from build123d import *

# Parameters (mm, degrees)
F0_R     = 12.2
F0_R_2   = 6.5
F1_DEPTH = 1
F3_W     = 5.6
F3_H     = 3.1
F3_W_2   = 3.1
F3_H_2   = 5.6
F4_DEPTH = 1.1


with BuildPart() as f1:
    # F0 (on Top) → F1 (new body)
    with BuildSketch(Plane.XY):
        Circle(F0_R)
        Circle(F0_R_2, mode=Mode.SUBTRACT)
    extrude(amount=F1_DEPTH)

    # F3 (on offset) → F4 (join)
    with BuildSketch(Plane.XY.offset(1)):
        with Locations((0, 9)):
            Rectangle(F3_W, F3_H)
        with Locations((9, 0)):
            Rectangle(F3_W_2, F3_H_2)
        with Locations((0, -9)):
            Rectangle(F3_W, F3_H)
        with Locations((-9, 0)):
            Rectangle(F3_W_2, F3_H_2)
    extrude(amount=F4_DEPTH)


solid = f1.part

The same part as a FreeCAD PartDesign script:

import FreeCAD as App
import Part
import Sketcher

V = App.Vector


def add_polygon(sketch, points):
    """Adds a closed chain of lines whose ends are joined by coincident constraints."""
    first, n = sketch.GeometryCount, len(points)
    for a, b in zip(points, points[1:] + points[:1]):
        sketch.addGeometry(Part.LineSegment(App.Vector(*a, 0), App.Vector(*b, 0)), False)
    for i in range(n):
        sketch.addConstraint(Sketcher.Constraint("Coincident", first + i, 2, first + (i + 1) % n, 1))

doc = App.newDocument("Part")
params = doc.addObject("Spreadsheet::Sheet", "Params")
for row, (alias, value) in enumerate([
    ("sketch1_diameter", "13 mm"),
    ("sketch1_diameter2", "24.4 mm"),
    ("pad1_length", "1 mm"),
    ("sketch2_width", "5.6 mm"),
    ("sketch2_width2", "3.1 mm"),
    ("pad2_length", "1.1 mm"),
], start=1):
    params.set(f"A{row}", alias)
    params.set(f"B{row}", "=" + value)
    params.setAlias(f"B{row}", alias)

body = doc.addObject("PartDesign::Body", "Body")

# Sketch on XY plane
sketch1 = body.newObject("Sketcher::SketchObject", "Sketch")
sketch1.AttachmentSupport = (doc.getObject("XY_Plane"), [""])
sketch1.MapMode = "FlatFace"
sketch1.addGeometry(Part.Circle(V(0, 0, 0), V(0, 0, 1), 12), False)
sketch1.addGeometry(Part.Circle(V(0, 0, 0), V(0, 0, 1), 6), False)
sketch1.addConstraint(Sketcher.Constraint("Coincident", 0, 3, -1, 1))
sketch1.addConstraint(Sketcher.Constraint("Coincident", 1, 3, -1, 1))
sketch1.addConstraint(Sketcher.Constraint("Diameter", 1, 13.0))
sketch1.addConstraint(Sketcher.Constraint("Diameter", 0, 24.4))
sketch1.setExpression("Constraints[2]", "Params.sketch1_diameter")
sketch1.setExpression("Constraints[3]", "Params.sketch1_diameter2")
pad1 = body.newObject("PartDesign::Pad", "Pad")
pad1.Profile = sketch1
pad1.setExpression("Length", "Params.pad1_length")

# Sketch on XY plane
sketch2 = body.newObject("Sketcher::SketchObject", "Sketch001")
sketch2.AttachmentSupport = (doc.getObject("XY_Plane"), [""])
sketch2.MapMode = "FlatFace"
sketch2.AttachmentOffset = App.Placement(V(0, 0, 1), App.Rotation())
add_polygon(sketch2, [(-2.8, 10.6), (-2.8, 7.5), (2.8, 7.5), (2.8, 10.6)])  # lines 0-3
add_polygon(sketch2, [(7.5, 2.8), (7.5, -2.8), (10.6, -2.8), (10.6, 2.8)])  # lines 4-7
add_polygon(sketch2, [(-2.8, -7.5), (-2.8, -10.6), (2.8, -10.6), (2.8, -7.5)])  # lines 8-11
add_polygon(sketch2, [(-10.6, 2.8), (-10.6, -2.8), (-7.5, -2.8), (-7.5, 2.8)])  # lines 12-15
sketch2.addConstraint(Sketcher.Constraint("Vertical", 0))
sketch2.addConstraint(Sketcher.Constraint("Horizontal", 1))
sketch2.addConstraint(Sketcher.Constraint("Vertical", 2))
sketch2.addConstraint(Sketcher.Constraint("Horizontal", 3))
sketch2.addConstraint(Sketcher.Constraint("Vertical", 4))
sketch2.addConstraint(Sketcher.Constraint("Horizontal", 5))
sketch2.addConstraint(Sketcher.Constraint("Vertical", 6))
sketch2.addConstraint(Sketcher.Constraint("Horizontal", 7))
sketch2.addConstraint(Sketcher.Constraint("Vertical", 8))
sketch2.addConstraint(Sketcher.Constraint("Horizontal", 9))
sketch2.addConstraint(Sketcher.Constraint("Vertical", 10))
sketch2.addConstraint(Sketcher.Constraint("Horizontal", 11))
sketch2.addConstraint(Sketcher.Constraint("Vertical", 12))
sketch2.addConstraint(Sketcher.Constraint("Horizontal", 13))
sketch2.addConstraint(Sketcher.Constraint("Vertical", 14))
sketch2.addConstraint(Sketcher.Constraint("Horizontal", 15))
sketch2.addConstraint(Sketcher.Constraint("Symmetric", 2, 2, 8, 2, -1, 1))
sketch2.addConstraint(Sketcher.Constraint("Symmetric", 0, 2, 10, 2, -1, 1))
sketch2.addConstraint(Sketcher.Constraint("Symmetric", 6, 2, 12, 2, -1, 1))
sketch2.addConstraint(Sketcher.Constraint("Symmetric", 4, 2, 14, 2, -1, 1))
sketch2.addConstraint(Sketcher.Constraint("Horizontal", 5, 2, 12, 2))
sketch2.addConstraint(Sketcher.Constraint("Vertical", 3, 2, 8, 2))
sketch2.addConstraint(Sketcher.Constraint("Equal", 15, 0))
sketch2.addConstraint(Sketcher.Constraint("Equal", 11, 4))
sketch2.addConstraint(Sketcher.Constraint("DistanceX", 1, 1, 1, 2, 5.6))
sketch2.addConstraint(Sketcher.Constraint("DistanceX", 5, 1, 5, 2, 3.1))
sketch2.addConstraint(Sketcher.Constraint("DistanceY", 8, 2, 0, 2, 18.0))
sketch2.addConstraint(Sketcher.Constraint("DistanceX", -1, 1, 4, 2, 7.45))
sketch2.setExpression("Constraints[40]", "Params.sketch2_width")
sketch2.setExpression("Constraints[41]", "Params.sketch2_width2")
pad2 = body.newObject("PartDesign::Pad", "Pad001")
pad2.Profile = sketch2
pad2.setExpression("Length", "Params.pad2_length")

doc.recompute()
